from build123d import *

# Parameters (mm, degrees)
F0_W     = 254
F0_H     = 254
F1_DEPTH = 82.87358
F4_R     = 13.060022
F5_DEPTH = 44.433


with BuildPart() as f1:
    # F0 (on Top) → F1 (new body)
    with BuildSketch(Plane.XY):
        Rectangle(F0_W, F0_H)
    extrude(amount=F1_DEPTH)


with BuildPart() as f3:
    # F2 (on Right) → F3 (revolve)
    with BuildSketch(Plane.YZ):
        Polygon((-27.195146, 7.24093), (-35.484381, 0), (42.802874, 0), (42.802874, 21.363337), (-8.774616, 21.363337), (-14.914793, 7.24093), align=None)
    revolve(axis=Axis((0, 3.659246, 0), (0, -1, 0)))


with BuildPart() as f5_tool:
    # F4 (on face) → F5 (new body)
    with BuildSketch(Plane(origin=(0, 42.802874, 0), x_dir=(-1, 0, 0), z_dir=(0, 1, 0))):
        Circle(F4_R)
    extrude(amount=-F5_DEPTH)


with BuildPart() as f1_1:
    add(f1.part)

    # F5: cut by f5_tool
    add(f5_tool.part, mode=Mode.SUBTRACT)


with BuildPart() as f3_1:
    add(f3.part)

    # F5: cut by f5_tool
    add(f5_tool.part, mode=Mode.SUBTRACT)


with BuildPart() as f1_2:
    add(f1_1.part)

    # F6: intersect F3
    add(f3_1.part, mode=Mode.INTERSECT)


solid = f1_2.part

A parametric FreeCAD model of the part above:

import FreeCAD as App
import Part
import Sketcher

V = App.Vector
Q = App.Units.Quantity

doc = App.newDocument("Part")
body = doc.addObject("PartDesign::Body", "Body")

sketch1 = body.newObject("Sketcher::SketchObject", "Sketch")
sketch1.AttachmentSupport = (doc.getObject("XY_Plane"), [""])
sketch1.MapMode = "FlatFace"
sketch1.addGeometry([
    Part.LineSegment(V(-127, 127, 0), V(-127, -127, 0)),
    Part.LineSegment(V(-127, -127, 0), V(127, -127, 0)),
    Part.LineSegment(V(127, -127, 0), V(127, 127, 0)),
    Part.LineSegment(V(127, 127, 0), V(-127, 127, 0)),
], False)
sketch1.addConstraint([
    Sketcher.Constraint("Coincident", 0, 2, 1, 1),
    Sketcher.Constraint("Coincident", 1, 2, 2, 1),
    Sketcher.Constraint("Coincident", 2, 2, 3, 1),
    Sketcher.Constraint("Coincident", 3, 2, 0, 1),
    Sketcher.Constraint("Vertical", 0),
    Sketcher.Constraint("Horizontal", 1),
    Sketcher.Constraint("Vertical", 2),
    Sketcher.Constraint("Horizontal", 3),
    Sketcher.Constraint("Symmetric", 0, 2, 2, 2, -1, 1),
    Sketcher.Constraint("Equal", 3, 0),
    Sketcher.Constraint("DistanceX", 1, 1, 1, 2, Q("10 in")),
])
pad1 = body.newObject("PartDesign::Pad", "Pad")
pad1.Profile = sketch1
pad1.Length = 82.87358
body2 = doc.addObject("PartDesign::Body", "Body001")

sketch2 = body2.newObject("Sketcher::SketchObject", "Sketch001")
sketch2.AttachmentSupport = (doc.getObject("YZ_Plane001"), [""])
sketch2.MapMode = "FlatFace"
sketch2.addGeometry([
    Part.LineSegment(V(-27, 7, 0), V(-35, 0, 0)),
    Part.LineSegment(V(-35, 0, 0), V(43, 0, 0)),
    Part.LineSegment(V(43, 0, 0), V(43, 21, 0)),
    Part.LineSegment(V(43, 21, 0), V(-9, 21, 0)),
    Part.LineSegment(V(-9, 21, 0), V(-15, 7, 0)),
    Part.LineSegment(V(-15, 7, 0), V(-27, 7, 0)),
], False)
sketch2.addConstraint([
    Sketcher.Constraint("Coincident", 0, 2, 1, 1),
    Sketcher.Constraint("Coincident", 1, 2, 2, 1),
    Sketcher.Constraint("Coincident", 2, 2, 3, 1),
    Sketcher.Constraint("Coincident", 3, 2, 4, 1),
    Sketcher.Constraint("Coincident", 4, 2, 5, 1),
    Sketcher.Constraint("Coincident", 5, 2, 0, 1),
    Sketcher.Constraint("Horizontal", 1),
    Sketcher.Constraint("Vertical", 2),
    Sketcher.Constraint("Horizontal", 3),
    Sketcher.Constraint("Horizontal", 5),
    Sketcher.Constraint("PointOnObject", 0, 2, -1),
    Sketcher.Constraint("DistanceX", 3, 2, 3, 1, Q("51.57749 mm")),
    Sketcher.Constraint("DistanceX", 1, 1, 1, 2, Q("78.287255 mm")),
    Sketcher.Constraint("DistanceX", 5, 2, 5, 1, Q("12.280353 mm")),
    Sketcher.Constraint("DistanceY", 2, 1, 2, 2, Q("21.363337 mm")),
    Sketcher.Constraint("DistanceX", 0, 2, -1, 1, Q("35.484381 mm")),
    Sketcher.Constraint("DistanceY", -1, 1, 4, 2, Q("7.24093 mm")),
    Sketcher.Constraint("DistanceX", 5, 2, 3, 2, Q("18.42053 mm")),
])
revolution = body2.newObject("PartDesign::Revolution", "Revolution")
revolution.Profile = sketch2
revolution.ReferenceAxis = (sketch2, ["H_Axis"])
revolution.Angle = 360
body3 = doc.addObject("PartDesign::Body", "Body002")

sketch3 = body3.newObject("Sketcher::SketchObject", "Sketch002")
sketch3.AttachmentSupport = (doc.getObject("XZ_Plane002"), [""])
sketch3.MapMode = "FlatFace"
sketch3.AttachmentOffset = App.Placement(V(0, 0, -42.802874), App.Rotation())
sketch3.addGeometry(Part.Circle(V(0, 0, 0), V(0, 0, 1), 13), False)
sketch3.addConstraint([
    Sketcher.Constraint("Coincident", 0, 3, -1, 1),
    Sketcher.Constraint("Diameter", 0, Q("26.120044 mm")),
])
pad2 = body3.newObject("PartDesign::Pad", "Pad001")
pad2.Profile = sketch3
pad2.Length = 44.433
doc.recompute()

body4 = doc.addObject("PartDesign::Body", "Body003")
body4.BaseFeature = body3
boolean = body.newObject("PartDesign::Boolean", "Boolean")
boolean.Type = "Cut"
boolean.addObjects([body4])
doc.recompute()

boolean2 = body2.newObject("PartDesign::Boolean", "Boolean001")
boolean2.Type = "Cut"
boolean2.addObjects([body3])
doc.recompute()

boolean3 = body.newObject("PartDesign::Boolean", "Boolean002")
boolean3.Type = "Common"
boolean3.addObjects([body2])

doc.recompute()
